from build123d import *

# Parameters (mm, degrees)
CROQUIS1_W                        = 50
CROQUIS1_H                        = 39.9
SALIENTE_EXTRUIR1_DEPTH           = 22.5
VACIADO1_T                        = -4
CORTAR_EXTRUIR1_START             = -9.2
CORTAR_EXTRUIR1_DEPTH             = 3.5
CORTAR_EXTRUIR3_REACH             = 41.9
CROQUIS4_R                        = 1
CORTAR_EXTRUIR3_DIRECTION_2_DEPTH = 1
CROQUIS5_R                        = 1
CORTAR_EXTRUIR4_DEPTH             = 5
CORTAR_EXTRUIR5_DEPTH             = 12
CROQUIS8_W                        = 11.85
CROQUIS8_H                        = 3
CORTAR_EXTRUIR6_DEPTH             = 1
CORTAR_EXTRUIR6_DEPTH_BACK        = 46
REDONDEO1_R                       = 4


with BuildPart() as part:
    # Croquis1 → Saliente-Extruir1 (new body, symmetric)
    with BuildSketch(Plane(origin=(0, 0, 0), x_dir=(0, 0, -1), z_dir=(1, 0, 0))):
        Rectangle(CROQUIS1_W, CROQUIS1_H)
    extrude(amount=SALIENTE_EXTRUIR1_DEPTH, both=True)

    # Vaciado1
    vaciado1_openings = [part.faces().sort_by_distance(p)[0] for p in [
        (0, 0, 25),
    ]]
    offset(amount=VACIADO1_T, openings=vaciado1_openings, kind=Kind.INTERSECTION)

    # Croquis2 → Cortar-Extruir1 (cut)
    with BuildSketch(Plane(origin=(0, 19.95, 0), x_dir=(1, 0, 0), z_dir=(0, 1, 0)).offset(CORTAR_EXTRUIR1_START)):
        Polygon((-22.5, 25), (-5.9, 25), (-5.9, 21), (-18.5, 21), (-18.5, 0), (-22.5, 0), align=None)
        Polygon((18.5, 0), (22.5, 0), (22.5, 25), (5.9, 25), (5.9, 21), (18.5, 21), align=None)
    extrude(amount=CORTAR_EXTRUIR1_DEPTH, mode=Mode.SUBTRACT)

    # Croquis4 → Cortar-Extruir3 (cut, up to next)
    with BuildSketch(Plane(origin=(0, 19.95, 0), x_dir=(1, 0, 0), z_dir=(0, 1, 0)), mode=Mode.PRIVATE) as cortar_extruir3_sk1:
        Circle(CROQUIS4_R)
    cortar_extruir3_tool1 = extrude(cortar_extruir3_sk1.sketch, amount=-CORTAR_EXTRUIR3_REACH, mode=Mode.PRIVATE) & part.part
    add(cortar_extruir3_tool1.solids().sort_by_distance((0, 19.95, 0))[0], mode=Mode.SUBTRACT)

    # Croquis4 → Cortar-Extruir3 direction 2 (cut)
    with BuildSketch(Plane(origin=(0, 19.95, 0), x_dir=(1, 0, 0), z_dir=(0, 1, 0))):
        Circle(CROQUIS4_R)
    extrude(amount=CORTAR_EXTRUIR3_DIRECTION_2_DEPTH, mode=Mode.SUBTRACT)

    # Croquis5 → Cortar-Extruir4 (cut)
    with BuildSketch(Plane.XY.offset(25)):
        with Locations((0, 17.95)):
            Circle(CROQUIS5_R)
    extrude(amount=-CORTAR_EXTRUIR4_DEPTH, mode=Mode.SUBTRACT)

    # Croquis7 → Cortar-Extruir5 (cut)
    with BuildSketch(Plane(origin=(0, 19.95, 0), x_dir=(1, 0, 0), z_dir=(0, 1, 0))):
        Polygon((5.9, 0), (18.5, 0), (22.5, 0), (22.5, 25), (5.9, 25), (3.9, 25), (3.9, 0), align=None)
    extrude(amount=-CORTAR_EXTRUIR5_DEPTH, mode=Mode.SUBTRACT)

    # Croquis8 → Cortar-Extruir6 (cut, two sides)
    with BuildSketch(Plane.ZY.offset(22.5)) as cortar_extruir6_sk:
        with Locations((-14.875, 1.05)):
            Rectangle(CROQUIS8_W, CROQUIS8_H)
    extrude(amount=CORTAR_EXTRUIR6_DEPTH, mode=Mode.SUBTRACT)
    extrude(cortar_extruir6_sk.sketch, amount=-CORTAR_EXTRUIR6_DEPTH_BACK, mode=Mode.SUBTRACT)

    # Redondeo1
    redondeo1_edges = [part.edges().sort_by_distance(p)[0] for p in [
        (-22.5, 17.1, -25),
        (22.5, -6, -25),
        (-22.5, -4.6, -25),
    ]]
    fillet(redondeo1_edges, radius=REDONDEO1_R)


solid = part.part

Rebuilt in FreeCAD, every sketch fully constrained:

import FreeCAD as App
import Part
import Sketcher

V = App.Vector


def edges_at(feature, points):
    """Names of the edges that pass closest to the given points."""
    edges = feature.Shape.Edges
    near = lambda p: min(range(len(edges)), key=lambda i: edges[i].distToShape(Part.Vertex(*p))[0])
    return sorted({f"Edge{near(p) + 1}" for p in points})


def faces_at(feature, points):
    """Names of the faces that lie closest to the given points."""
    faces = feature.Shape.Faces
    near = lambda p: min(range(len(faces)), key=lambda i: faces[i].distToShape(Part.Vertex(*p))[0])
    return sorted({f"Face{near(p) + 1}" for p in points})


def add_polygon(sketch, points):
    """Adds a closed chain of lines whose ends are joined by coincident constraints."""
    first, n = sketch.GeometryCount, len(points)
    for a, b in zip(points, points[1:] + points[:1]):
        sketch.addGeometry(Part.LineSegment(App.Vector(*a, 0), App.Vector(*b, 0)), False)
    for i in range(n):
        sketch.addConstraint(Sketcher.Constraint("Coincident", first + i, 2, first + (i + 1) % n, 1))

doc = App.newDocument("Part")
body = doc.addObject("PartDesign::Body", "Body")

sketch1 = body.newObject("Sketcher::SketchObject", "Sketch")
sketch1.AttachmentSupport = (doc.getObject("YZ_Plane"), [""])
sketch1.MapMode = "FlatFace"
add_polygon(sketch1, [(20, 25), (-20, 25), (-20, -25), (20, -25)])
sketch1.addConstraint([
    Sketcher.Constraint("Horizontal", 0),
    Sketcher.Constraint("Vertical", 1),
    Sketcher.Constraint("Horizontal", 2),
    Sketcher.Constraint("Vertical", 3),
    Sketcher.Constraint("Symmetric", 0, 2, 2, 2, -1, 1),
    Sketcher.Constraint("DistanceY", 1, 2, 1, 1, 50.0),
    Sketcher.Constraint("DistanceX", 0, 2, 0, 1, 39.9),
])
pad1 = body.newObject("PartDesign::Pad", "Pad")
pad1.Profile = sketch1
pad1.Length = 45
pad1.Midplane = True
doc.recompute()

thickness = body.newObject("PartDesign::Thickness", "Thickness")
thickness.Base = (pad1, faces_at(pad1, [(0, 0, 25)]))
thickness.Value = 4
thickness.Reversed = True
thickness.Join = "Intersection"

sketch2 = body.newObject("Sketcher::SketchObject", "Sketch001")
sketch2.AttachmentSupport = (doc.getObject("XZ_Plane"), [""])
sketch2.MapMode = "FlatFace"
sketch2.AttachmentOffset = App.Placement(V(0, 0, -10.75), App.Rotation())
add_polygon(sketch2, [(-5.9, -25), (-22.5, -25), (-22.5, 0), (-18.5, 0), (-18.5, -21), (-5.9, -21)])
add_polygon(sketch2, [(18.5, 0), (22.5, 0), (22.5, -25), (5.9, -25), (5.9, -21), (18.5, -21)])
sketch2.addConstraint([
    Sketcher.Constraint("Horizontal", 0),
    Sketcher.Constraint("Vertical", 1),
    Sketcher.Constraint("Horizontal", 2),
    Sketcher.Constraint("Vertical", 3),
    Sketcher.Constraint("Horizontal", 4),
    Sketcher.Constraint("Vertical", 5),
    Sketcher.Constraint("Horizontal", 6),
    Sketcher.Constraint("Vertical", 7),
    Sketcher.Constraint("Horizontal", 8),
    Sketcher.Constraint("Vertical", 9),
    Sketcher.Constraint("Horizontal", 10),
    Sketcher.Constraint("Vertical", 11),
    Sketcher.Constraint("Symmetric", 1, 2, 6, 2, -1, 1),
    Sketcher.Constraint("Symmetric", 5, 2, 8, 2, -2),
    Sketcher.Constraint("Symmetric", 3, 2, 10, 2, -2),
    Sketcher.Constraint("PointOnObject", 1, 2, -1),
    Sketcher.Constraint("Equal", 6, 5),
    Sketcher.Constraint("DistanceX", 2, 1, 2, 2, 4.0),
    Sketcher.Constraint("DistanceY", 1, 1, 1, 2, 25.0),
    Sketcher.Constraint("DistanceX", 0, 2, 0, 1, 16.6),
    Sketcher.Constraint("DistanceX", 2, 2, 6, 2, 41.0),
])
pocket1 = body.newObject("PartDesign::Pocket", "Pocket")
pocket1.Profile = sketch2
pocket1.Length = 3.5

sketch3 = body.newObject("Sketcher::SketchObject", "Sketch002")
sketch3.AttachmentSupport = (doc.getObject("XZ_Plane"), [""])
sketch3.MapMode = "FlatFace"
sketch3.AttachmentOffset = App.Placement(V(0, 0, -19.95), App.Rotation())
sketch3.addGeometry(Part.Circle(V(0, 0, 0), V(0, 0, 1), 1), False)
sketch3.addConstraint([
    Sketcher.Constraint("Coincident", 0, 3, -1, 1),
    Sketcher.Constraint("Diameter", 0, 2.0),
])
pocket2 = body.newObject("PartDesign::Pocket", "Pocket001")
pocket2.Profile = sketch3
pocket2.Type = "UpToFirst"
pocket2.Reversed = True

sketch4 = body.newObject("Sketcher::SketchObject", "Sketch003")
sketch4.AttachmentSupport = (doc.getObject("XZ_Plane"), [""])
sketch4.MapMode = "FlatFace"
sketch4.AttachmentOffset = App.Placement(V(0, 0, -19.95), App.Rotation())
sketch4.addGeometry(Part.Circle(V(0, 0, 0), V(0, 0, 1), 1), False)
sketch4.addConstraint([
    Sketcher.Constraint("Coincident", 0, 3, -1, 1),
    Sketcher.Constraint("Diameter", 0, 2.0),
])
pocket3 = body.newObject("PartDesign::Pocket", "Pocket002")
pocket3.Profile = sketch4
pocket3.Length = 1

sketch5 = body.newObject("Sketcher::SketchObject", "Sketch004")
sketch5.AttachmentSupport = (doc.getObject("XY_Plane"), [""])
sketch5.MapMode = "FlatFace"
sketch5.AttachmentOffset = App.Placement(V(0, 0, 25), App.Rotation())
sketch5.addGeometry(Part.Circle(V(0, 17.9, 0), V(0, 0, 1), 1), False)
sketch5.addConstraint([
    Sketcher.Constraint("PointOnObject", 0, 3, -2),
    Sketcher.Constraint("Diameter", 0, 2.0),
    Sketcher.Constraint("DistanceY", -1, 1, 0, 3, 17.95),
])
pocket4 = body.newObject("PartDesign::Pocket", "Pocket003")
pocket4.Profile = sketch5
pocket4.Length = 5

sketch6 = body.newObject("Sketcher::SketchObject", "Sketch005")
sketch6.AttachmentSupport = (doc.getObject("XZ_Plane"), [""])
sketch6.MapMode = "FlatFace"
sketch6.AttachmentOffset = App.Placement(V(0, 0, -19.95), App.Rotation())
add_polygon(sketch6, [(22, 0), (22, -25), (4, -25), (4, 0)])
sketch6.addConstraint([
    Sketcher.Constraint("Vertical", 0),
    Sketcher.Constraint("Horizontal", 1),
    Sketcher.Constraint("Vertical", 2),
    Sketcher.Constraint("Horizontal", 3),
    Sketcher.Constraint("PointOnObject", 2, 2, -1),
    Sketcher.Constraint("DistanceY", 0, 2, 0, 1, 25.0),
    Sketcher.Constraint("DistanceX", 1, 2, 1, 1, 18.6),
    Sketcher.Constraint("DistanceX", -1, 1, 0, 2, 22.5),
])
pocket5 = body.newObject("PartDesign::Pocket", "Pocket004")
pocket5.Profile = sketch6
pocket5.Length = 12
pocket5.Reversed = True

sketch7 = body.newObject("Sketcher::SketchObject", "Sketch006")
sketch7.AttachmentSupport = (doc.getObject("YZ_Plane"), [""])
sketch7.MapMode = "FlatFace"
sketch7.AttachmentOffset = App.Placement(V(0, 0, -22.5), App.Rotation())
add_polygon(sketch7, [(2.5, -20.8), (-0.5, -20.8), (-0.5, -8.9), (2.5, -8.9)])
sketch7.addConstraint([
    Sketcher.Constraint("Horizontal", 0),
    Sketcher.Constraint("Vertical", 1),
    Sketcher.Constraint("Horizontal", 2),
    Sketcher.Constraint("Vertical", 3),
    Sketcher.Constraint("DistanceX", 0, 2, 0, 1, 3.0),
    Sketcher.Constraint("DistanceY", 1, 1, 1, 2, 11.85),
    Sketcher.Constraint("DistanceY", 0, 2, -1, 1, 20.8),
    Sketcher.Constraint("DistanceX", 0, 2, -1, 1, 0.45),
])
pocket6 = body.newObject("PartDesign::Pocket", "Pocket005")
pocket6.Profile = sketch7
pocket6.Type = "ThroughAll"
pocket6.Midplane = True
doc.recompute()

fillet = body.newObject("PartDesign::Fillet", "Fillet")
fillet.Base = (pocket6, edges_at(pocket6, [(-22.5, 17.1, -25), (22.5, -6, -25), (-22.5, -4.6, -25)]))
fillet.Radius = 4

doc.recompute()
